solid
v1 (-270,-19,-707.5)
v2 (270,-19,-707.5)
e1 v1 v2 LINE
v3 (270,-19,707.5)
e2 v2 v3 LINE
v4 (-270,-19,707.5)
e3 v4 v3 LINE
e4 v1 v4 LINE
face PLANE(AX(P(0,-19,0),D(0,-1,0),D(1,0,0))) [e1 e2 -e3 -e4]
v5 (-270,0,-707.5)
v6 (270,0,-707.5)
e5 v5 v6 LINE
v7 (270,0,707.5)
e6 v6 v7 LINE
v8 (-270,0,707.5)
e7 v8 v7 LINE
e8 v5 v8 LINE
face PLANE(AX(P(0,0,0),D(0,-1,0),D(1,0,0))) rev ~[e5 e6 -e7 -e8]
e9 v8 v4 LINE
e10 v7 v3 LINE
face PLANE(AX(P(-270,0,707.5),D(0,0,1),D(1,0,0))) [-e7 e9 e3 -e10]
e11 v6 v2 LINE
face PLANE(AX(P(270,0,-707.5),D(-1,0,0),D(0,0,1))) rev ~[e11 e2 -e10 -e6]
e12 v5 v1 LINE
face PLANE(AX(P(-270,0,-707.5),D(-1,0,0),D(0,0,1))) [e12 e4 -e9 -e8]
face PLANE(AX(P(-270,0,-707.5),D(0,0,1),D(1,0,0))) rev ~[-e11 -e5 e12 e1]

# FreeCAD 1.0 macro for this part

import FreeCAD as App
import Part
import Sketcher

doc = App.newDocument("Part")
body = doc.addObject("PartDesign::Body", "Body")

sketch1 = body.newObject("Sketcher::SketchObject", "Sketch")
sketch1.AttachmentSupport = (doc.getObject("XZ_Plane"), [""])
sketch1.MapMode = "FlatFace"
sketch1.addGeometry(Part.LineSegment(App.Vector(-270, 708, 0), App.Vector(-270, -708, 0)), False)
sketch1.addGeometry(Part.LineSegment(App.Vector(-270, -708, 0), App.Vector(270, -708, 0)), False)
sketch1.addGeometry(Part.LineSegment(App.Vector(270, -708, 0), App.Vector(270, 708, 0)), False)
sketch1.addGeometry(Part.LineSegment(App.Vector(270, 708, 0), App.Vector(-270, 708, 0)), False)
sketch1.addConstraint(Sketcher.Constraint("Coincident", 0, 2, 1, 1))
sketch1.addConstraint(Sketcher.Constraint("Coincident", 1, 2, 2, 1))
sketch1.addConstraint(Sketcher.Constraint("Coincident", 2, 2, 3, 1))
sketch1.addConstraint(Sketcher.Constraint("Coincident", 3, 2, 0, 1))
sketch1.addConstraint(Sketcher.Constraint("Vertical", 0))
sketch1.addConstraint(Sketcher.Constraint("Horizontal", 1))
sketch1.addConstraint(Sketcher.Constraint("Vertical", 2))
sketch1.addConstraint(Sketcher.Constraint("Horizontal", 3))
sketch1.addConstraint(Sketcher.Constraint("Symmetric", 0, 2, 2, 2, -1, 1))
sketch1.addConstraint(Sketcher.Constraint("DistanceX", 1, 1, 1, 2, 540.0))
sketch1.addConstraint(Sketcher.Constraint("DistanceY", 0, 2, 0, 1, 1415.0))
pad1 = body.newObject("PartDesign::Pad", "Pad")
pad1.Profile = sketch1
pad1.Length = 19

doc.recompute()
